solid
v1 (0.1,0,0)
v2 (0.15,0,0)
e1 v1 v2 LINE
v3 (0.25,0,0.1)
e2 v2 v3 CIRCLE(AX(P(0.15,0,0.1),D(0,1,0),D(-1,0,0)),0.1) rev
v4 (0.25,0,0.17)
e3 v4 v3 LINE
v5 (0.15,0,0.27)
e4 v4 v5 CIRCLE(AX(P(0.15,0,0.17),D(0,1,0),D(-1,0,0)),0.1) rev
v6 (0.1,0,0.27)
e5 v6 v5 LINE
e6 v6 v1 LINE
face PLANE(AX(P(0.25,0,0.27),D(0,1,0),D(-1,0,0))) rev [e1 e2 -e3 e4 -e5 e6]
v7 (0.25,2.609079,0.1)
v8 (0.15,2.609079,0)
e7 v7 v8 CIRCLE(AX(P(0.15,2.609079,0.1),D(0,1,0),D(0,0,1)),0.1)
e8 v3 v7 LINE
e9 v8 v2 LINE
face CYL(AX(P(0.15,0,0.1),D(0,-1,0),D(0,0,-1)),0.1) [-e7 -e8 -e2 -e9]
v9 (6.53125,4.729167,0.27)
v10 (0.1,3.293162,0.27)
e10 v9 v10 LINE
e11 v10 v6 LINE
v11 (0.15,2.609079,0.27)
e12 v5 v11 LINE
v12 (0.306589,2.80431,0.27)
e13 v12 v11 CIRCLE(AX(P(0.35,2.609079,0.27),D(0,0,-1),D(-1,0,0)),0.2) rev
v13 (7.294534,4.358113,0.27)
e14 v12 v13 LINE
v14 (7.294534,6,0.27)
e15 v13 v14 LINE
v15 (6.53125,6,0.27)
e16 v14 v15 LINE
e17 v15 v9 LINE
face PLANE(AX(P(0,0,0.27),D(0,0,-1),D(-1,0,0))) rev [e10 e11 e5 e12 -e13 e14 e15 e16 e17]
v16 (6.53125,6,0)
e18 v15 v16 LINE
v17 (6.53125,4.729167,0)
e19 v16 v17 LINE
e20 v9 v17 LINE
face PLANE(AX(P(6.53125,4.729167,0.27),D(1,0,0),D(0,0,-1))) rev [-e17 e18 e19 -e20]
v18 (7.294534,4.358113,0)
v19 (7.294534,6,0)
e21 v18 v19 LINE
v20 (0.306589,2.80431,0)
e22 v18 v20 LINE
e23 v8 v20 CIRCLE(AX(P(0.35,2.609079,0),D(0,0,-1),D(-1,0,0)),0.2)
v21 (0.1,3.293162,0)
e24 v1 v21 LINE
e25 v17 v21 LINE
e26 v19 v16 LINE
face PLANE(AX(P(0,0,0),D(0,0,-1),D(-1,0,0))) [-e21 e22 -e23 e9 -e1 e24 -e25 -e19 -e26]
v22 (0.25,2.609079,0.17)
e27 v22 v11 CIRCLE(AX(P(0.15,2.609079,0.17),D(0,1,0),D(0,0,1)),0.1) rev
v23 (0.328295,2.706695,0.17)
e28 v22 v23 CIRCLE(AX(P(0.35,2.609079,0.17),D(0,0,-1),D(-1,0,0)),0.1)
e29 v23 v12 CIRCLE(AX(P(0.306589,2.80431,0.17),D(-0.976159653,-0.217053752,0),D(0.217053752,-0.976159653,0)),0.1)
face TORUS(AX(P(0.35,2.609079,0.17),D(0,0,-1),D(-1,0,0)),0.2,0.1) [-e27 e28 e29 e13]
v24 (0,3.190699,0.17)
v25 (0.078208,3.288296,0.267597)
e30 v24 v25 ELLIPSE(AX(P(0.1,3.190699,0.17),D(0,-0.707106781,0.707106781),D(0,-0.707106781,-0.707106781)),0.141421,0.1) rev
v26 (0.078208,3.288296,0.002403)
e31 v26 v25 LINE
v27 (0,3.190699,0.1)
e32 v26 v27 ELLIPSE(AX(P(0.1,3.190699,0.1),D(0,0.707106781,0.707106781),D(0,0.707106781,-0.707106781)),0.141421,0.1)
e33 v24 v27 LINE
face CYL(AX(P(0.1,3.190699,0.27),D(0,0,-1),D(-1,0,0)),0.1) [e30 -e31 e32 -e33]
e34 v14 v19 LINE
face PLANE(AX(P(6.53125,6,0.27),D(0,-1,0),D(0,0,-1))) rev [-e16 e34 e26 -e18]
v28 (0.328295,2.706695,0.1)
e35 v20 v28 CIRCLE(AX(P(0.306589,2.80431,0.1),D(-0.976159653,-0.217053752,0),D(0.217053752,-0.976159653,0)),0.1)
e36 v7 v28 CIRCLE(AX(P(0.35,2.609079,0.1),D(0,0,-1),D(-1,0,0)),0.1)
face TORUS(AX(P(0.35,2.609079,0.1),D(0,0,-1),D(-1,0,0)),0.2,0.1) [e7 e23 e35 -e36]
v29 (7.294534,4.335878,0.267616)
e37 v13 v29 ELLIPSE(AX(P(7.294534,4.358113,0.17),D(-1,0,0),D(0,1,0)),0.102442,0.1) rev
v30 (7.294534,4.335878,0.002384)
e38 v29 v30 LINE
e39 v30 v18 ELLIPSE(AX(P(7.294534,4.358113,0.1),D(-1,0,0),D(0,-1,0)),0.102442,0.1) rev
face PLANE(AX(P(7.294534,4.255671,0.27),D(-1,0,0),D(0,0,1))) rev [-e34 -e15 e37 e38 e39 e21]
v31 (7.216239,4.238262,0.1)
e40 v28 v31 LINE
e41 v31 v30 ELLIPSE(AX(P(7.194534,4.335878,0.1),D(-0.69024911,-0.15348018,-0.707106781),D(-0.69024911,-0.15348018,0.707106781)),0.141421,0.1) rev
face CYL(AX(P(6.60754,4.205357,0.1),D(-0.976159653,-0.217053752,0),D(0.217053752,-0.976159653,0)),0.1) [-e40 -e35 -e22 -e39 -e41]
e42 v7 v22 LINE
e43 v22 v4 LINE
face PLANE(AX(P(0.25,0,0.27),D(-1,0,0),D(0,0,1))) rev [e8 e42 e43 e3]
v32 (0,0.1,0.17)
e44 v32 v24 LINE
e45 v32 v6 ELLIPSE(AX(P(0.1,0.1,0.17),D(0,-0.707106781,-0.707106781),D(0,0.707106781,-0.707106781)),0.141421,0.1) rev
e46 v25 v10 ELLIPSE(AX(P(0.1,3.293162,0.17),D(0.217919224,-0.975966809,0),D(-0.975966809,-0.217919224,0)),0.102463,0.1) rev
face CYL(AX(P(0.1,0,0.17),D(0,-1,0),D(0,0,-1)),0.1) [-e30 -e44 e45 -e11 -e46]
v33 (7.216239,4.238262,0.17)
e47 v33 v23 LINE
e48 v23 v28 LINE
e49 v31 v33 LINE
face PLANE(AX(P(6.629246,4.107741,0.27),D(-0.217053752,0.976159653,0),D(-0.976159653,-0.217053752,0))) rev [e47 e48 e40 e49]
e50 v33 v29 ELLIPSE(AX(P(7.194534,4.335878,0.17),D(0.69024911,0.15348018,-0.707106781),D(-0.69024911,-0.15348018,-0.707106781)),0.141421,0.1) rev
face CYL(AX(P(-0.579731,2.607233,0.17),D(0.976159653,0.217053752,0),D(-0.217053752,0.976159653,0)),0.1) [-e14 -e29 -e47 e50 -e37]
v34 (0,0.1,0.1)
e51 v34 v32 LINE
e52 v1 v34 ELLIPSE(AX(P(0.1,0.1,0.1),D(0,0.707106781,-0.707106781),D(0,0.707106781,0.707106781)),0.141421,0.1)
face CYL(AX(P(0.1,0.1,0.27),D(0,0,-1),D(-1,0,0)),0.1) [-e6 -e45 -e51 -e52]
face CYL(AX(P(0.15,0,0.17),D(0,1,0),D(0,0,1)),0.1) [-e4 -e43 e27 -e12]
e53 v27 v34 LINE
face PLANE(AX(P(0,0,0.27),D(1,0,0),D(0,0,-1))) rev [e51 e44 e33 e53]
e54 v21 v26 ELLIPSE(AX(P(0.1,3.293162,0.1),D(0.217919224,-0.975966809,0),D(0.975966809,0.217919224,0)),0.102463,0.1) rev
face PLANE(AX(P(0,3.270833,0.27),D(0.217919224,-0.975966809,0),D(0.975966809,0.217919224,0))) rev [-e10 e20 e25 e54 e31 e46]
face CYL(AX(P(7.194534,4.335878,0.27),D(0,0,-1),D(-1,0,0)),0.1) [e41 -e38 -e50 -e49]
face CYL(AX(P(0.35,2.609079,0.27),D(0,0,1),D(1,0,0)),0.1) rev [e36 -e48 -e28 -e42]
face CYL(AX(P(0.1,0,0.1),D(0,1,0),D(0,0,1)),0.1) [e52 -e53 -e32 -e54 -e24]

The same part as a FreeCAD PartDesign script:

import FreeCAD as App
import Part
import Sketcher

V = App.Vector


def edges_at(feature, points):
    """Names of the edges that pass closest to the given points."""
    edges = feature.Shape.Edges
    near = lambda p: min(range(len(edges)), key=lambda i: edges[i].distToShape(Part.Vertex(*p))[0])
    return sorted({f"Edge{near(p) + 1}" for p in points})

doc = App.newDocument("Part")
body = doc.addObject("PartDesign::Body", "Body")

# Sketch on XY plane
sketch1 = body.newObject("Sketcher::SketchObject", "Sketch")
sketch1.AttachmentSupport = (doc.getObject("XY_Plane"), [""])
sketch1.MapMode = "FlatFace"
sketch1.addGeometry(Part.LineSegment(V(0, 3.270833, 0), V(0, 0, 0)), False)
sketch1.addGeometry(Part.LineSegment(V(0, 0, 0), V(0.25, 0, 0)), False)
sketch1.addGeometry(Part.LineSegment(V(0.25, 0, 0), V(0.25, 2.689285, 0)), False)
sketch1.addGeometry(Part.LineSegment(V(0.25, 2.689285, 0), V(6.629246, 4.107741, 0)), False)
sketch1.addGeometry(Part.LineSegment(V(6.629246, 4.107741, 0), V(7.294534, 4.255671, 0)), False)
sketch1.addGeometry(Part.LineSegment(V(7.294534, 4.255671, 0), V(7.294534, 6, 0)), False)
sketch1.addGeometry(Part.LineSegment(V(7.294534, 6, 0), V(6.53125, 6, 0)), False)
sketch1.addGeometry(Part.LineSegment(V(6.53125, 6, 0), V(6.53125, 4.729167, 0)), False)
sketch1.addGeometry(Part.LineSegment(V(6.53125, 4.729167, 0), V(0, 3.270833, 0)), False)
sketch1.addConstraint(Sketcher.Constraint("Coincident", 0, 2, 1, 1))
sketch1.addConstraint(Sketcher.Constraint("Coincident", 1, 2, 2, 1))
sketch1.addConstraint(Sketcher.Constraint("Coincident", 2, 2, 3, 1))
sketch1.addConstraint(Sketcher.Constraint("Coincident", 3, 2, 4, 1))
sketch1.addConstraint(Sketcher.Constraint("Coincident", 4, 2, 5, 1))
sketch1.addConstraint(Sketcher.Constraint("Coincident", 5, 2, 6, 1))
sketch1.addConstraint(Sketcher.Constraint("Coincident", 6, 2, 7, 1))
sketch1.addConstraint(Sketcher.Constraint("Coincident", 7, 2, 8, 1))
sketch1.addConstraint(Sketcher.Constraint("Coincident", 8, 2, 0, 1))
sketch1.addConstraint(Sketcher.Constraint("Vertical", 0))
sketch1.addConstraint(Sketcher.Constraint("Horizontal", 1))
sketch1.addConstraint(Sketcher.Constraint("Vertical", 2))
sketch1.addConstraint(Sketcher.Constraint("Vertical", 5))
sketch1.addConstraint(Sketcher.Constraint("Horizontal", 6))
sketch1.addConstraint(Sketcher.Constraint("Vertical", 7))
sketch1.addConstraint(Sketcher.Constraint("Coincident", 0, 2, -1, 1))
sketch1.addConstraint(Sketcher.Constraint("Parallel", 3, 4))
sketch1.addConstraint(Sketcher.Constraint("DistanceY", -1, 1, 5, 2, 6.0))
sketch1.addConstraint(Sketcher.Constraint("DistanceX", 1, 1, 1, 2, 0.25))
sketch1.addConstraint(Sketcher.Constraint("DistanceY", 5, 1, 5, 2, 1.744329))
sketch1.addConstraint(Sketcher.Constraint("DistanceX", 6, 2, 6, 1, 0.763284))
sketch1.addConstraint(Sketcher.Constraint("DistanceY", 0, 2, 0, 1, 3.270833))
sketch1.addConstraint(Sketcher.Constraint("DistanceY", 2, 1, 2, 2, 2.689285))
sketch1.addConstraint(Sketcher.Constraint("DistanceY", 7, 2, 7, 1, 1.270833))
sketch1.addConstraint(Sketcher.Constraint("DistanceY", -1, 1, 3, 2, 4.107741))
sketch1.addConstraint(Sketcher.Constraint("DistanceX", -1, 1, 6, 2, 6.53125))
pad1 = body.newObject("PartDesign::Pad", "Pad")
pad1.Profile = sketch1
pad1.Length = 0.27
doc.recompute()

fillet = body.newObject("PartDesign::Fillet", "Fillet")
fillet.Base = (pad1, edges_at(pad1, [
    (3.44, 3.399, 0.27),
    (3.44, 3.399, 0),
    (0.25, 1.345, 0),
    (0, 0, 0.135),
    (0, 3.271, 0.135),
    (7.295, 4.256, 0.135),
    (0.25, 2.689, 0.135),
    (0, 1.635, 0.27),
    (0.25, 1.345, 0.27),
    (0, 1.635, 0),
]))
fillet.Radius = 0.1

doc.recompute()
